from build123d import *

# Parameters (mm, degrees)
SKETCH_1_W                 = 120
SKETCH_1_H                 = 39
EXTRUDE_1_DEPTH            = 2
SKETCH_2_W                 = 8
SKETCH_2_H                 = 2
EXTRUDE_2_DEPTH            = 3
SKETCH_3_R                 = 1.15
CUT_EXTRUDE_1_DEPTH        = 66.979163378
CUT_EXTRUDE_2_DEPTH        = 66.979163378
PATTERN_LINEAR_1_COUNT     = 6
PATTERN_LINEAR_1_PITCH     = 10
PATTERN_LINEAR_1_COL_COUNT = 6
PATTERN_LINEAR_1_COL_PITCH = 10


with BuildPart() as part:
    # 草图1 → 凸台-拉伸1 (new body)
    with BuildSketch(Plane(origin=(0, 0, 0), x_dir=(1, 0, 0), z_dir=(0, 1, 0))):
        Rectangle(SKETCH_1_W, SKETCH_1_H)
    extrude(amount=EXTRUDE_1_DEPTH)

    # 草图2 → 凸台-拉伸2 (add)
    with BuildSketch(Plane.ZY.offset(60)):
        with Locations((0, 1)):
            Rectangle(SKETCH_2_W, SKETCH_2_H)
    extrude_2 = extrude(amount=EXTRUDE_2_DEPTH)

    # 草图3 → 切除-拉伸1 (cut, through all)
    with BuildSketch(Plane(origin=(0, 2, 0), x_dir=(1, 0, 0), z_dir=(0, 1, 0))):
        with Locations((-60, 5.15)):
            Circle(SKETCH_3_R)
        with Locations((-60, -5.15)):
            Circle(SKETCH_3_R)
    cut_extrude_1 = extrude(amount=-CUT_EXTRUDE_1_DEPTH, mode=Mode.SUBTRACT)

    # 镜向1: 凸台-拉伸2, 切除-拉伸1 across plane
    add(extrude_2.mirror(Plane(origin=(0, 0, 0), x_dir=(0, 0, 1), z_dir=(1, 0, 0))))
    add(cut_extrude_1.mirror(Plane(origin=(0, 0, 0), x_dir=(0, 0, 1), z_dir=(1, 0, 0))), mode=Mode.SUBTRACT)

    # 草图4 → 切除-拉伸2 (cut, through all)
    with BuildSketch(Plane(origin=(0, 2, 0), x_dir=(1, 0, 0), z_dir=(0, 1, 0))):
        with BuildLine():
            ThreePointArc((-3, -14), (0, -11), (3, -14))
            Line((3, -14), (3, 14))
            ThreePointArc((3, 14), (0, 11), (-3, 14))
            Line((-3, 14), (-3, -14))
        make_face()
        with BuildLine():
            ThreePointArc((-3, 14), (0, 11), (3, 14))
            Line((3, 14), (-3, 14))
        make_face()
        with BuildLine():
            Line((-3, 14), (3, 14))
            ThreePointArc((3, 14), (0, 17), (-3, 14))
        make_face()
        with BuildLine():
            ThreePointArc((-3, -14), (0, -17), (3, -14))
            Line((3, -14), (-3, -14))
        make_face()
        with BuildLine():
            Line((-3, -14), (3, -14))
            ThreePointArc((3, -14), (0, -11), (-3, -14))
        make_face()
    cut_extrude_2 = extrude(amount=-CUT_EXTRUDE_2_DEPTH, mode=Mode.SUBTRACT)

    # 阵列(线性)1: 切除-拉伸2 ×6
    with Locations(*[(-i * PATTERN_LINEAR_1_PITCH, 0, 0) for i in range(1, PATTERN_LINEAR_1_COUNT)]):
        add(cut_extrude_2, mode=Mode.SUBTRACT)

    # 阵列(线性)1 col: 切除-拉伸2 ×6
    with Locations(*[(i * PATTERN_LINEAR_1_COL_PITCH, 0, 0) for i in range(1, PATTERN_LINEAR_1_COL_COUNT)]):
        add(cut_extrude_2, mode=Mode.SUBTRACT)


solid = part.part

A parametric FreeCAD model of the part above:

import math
import FreeCAD as App
import Part
import Sketcher
from FreeCAD import Vector
Q = App.Units.Quantity


def add_polygon(sketch, points):
    """Adds a closed chain of lines whose ends are joined by coincident constraints."""
    first, n = sketch.GeometryCount, len(points)
    for a, b in zip(points, points[1:] + points[:1]):
        sketch.addGeometry(Part.LineSegment(App.Vector(*a, 0), App.Vector(*b, 0)), False)
    for i in range(n):
        sketch.addConstraint(Sketcher.Constraint("Coincident", first + i, 2, first + (i + 1) % n, 1))

doc = App.newDocument("Part")
body = doc.addObject("PartDesign::Body", "Body")

sketch1 = body.newObject("Sketcher::SketchObject", "Sketch")
sketch1.AttachmentSupport = (doc.getObject("XZ_Plane"), [""])
sketch1.MapMode = "FlatFace"
add_polygon(sketch1, [(-60, -20), (-60, 20), (60, 20), (60, -20)])
sketch1.addConstraint(Sketcher.Constraint("Vertical", 0))
sketch1.addConstraint(Sketcher.Constraint("Horizontal", 1))
sketch1.addConstraint(Sketcher.Constraint("Vertical", 2))
sketch1.addConstraint(Sketcher.Constraint("Horizontal", 3))
sketch1.addConstraint(Sketcher.Constraint("Symmetric", 0, 2, 2, 2, -1, 1))
sketch1.addConstraint(Sketcher.Constraint("DistanceX", 1, 1, 1, 2, Q("120 mm")))
sketch1.addConstraint(Sketcher.Constraint("DistanceY", 0, 1, 0, 2, Q("39 mm")))
pad1 = body.newObject("PartDesign::Pad", "Pad")
pad1.Profile = sketch1
pad1.Length = 2
pad1.Reversed = True

sketch2 = body.newObject("Sketcher::SketchObject", "Sketch001")
sketch2.AttachmentSupport = (doc.getObject("YZ_Plane"), [""])
sketch2.MapMode = "FlatFace"
sketch2.AttachmentOffset = App.Placement(Vector(0, 0, -60), App.Rotation())
add_polygon(sketch2, [(2, -4), (0, -4), (0, 4), (2, 4)])
sketch2.addConstraint(Sketcher.Constraint("Horizontal", 0))
sketch2.addConstraint(Sketcher.Constraint("Vertical", 1))
sketch2.addConstraint(Sketcher.Constraint("Horizontal", 2))
sketch2.addConstraint(Sketcher.Constraint("Vertical", 3))
sketch2.addConstraint(Sketcher.Constraint("Symmetric", 0, 2, 1, 2, -1, 1))
sketch2.addConstraint(Sketcher.Constraint("DistanceX", 0, 2, 0, 1, Q("2 mm")))
sketch2.addConstraint(Sketcher.Constraint("DistanceY", 1, 1, 1, 2, Q("8 mm")))
pad2 = body.newObject("PartDesign::Pad", "Pad001")
pad2.Profile = sketch2
pad2.Length = 3
pad2.Reversed = True

sketch3 = body.newObject("Sketcher::SketchObject", "Sketch002")
sketch3.AttachmentSupport = (doc.getObject("XZ_Plane"), [""])
sketch3.MapMode = "FlatFace"
sketch3.AttachmentOffset = App.Placement(Vector(0, 0, -2), App.Rotation())
sketch3.addGeometry(Part.Circle(Vector(-60, -5.2, 0), Vector(0, 0, 1), 1.1), False)
sketch3.addGeometry(Part.Circle(Vector(-60, 5.2, 0), Vector(0, 0, 1), 1.1), False)
sketch3.addConstraint(Sketcher.Constraint("Equal", 0, 1))
sketch3.addConstraint(Sketcher.Constraint("Symmetric", 0, 3, 1, 3, -1))
sketch3.addConstraint(Sketcher.Constraint("Diameter", 0, Q("2.3 mm")))
sketch3.addConstraint(Sketcher.Constraint("DistanceX", 0, 3, -1, 1, Q("60 mm")))
sketch3.addConstraint(Sketcher.Constraint("DistanceY", 0, 3, 1, 3, Q("10.3 mm")))
pocket1 = body.newObject("PartDesign::Pocket", "Pocket")
pocket1.Profile = sketch3
pocket1.Type = "ThroughAll"
pocket1.Reversed = True
doc.recompute()

mirrored = body.newObject("PartDesign::Mirrored", "Mirrored")
mirrored.Originals = [pad2, pocket1]
mirrored.MirrorPlane = (doc.getObject("YZ_Plane"), [""])
body.Tip = mirrored

sketch4 = body.newObject("Sketcher::SketchObject", "Sketch003")
sketch4.AttachmentSupport = (doc.getObject("XZ_Plane"), [""])
sketch4.MapMode = "FlatFace"
sketch4.AttachmentOffset = App.Placement(Vector(0, 0, -2), App.Rotation())
sketch4.addGeometry(Part.ArcOfCircle(Part.Circle(Vector(0, -14, 0), Vector(0, 0, 1), 3), math.radians(180), math.radians(360)), False)
sketch4.addGeometry(Part.LineSegment(Vector(-3, -14, 0), Vector(-3, 14, 0)), False)
sketch4.addGeometry(Part.ArcOfCircle(Part.Circle(Vector(0, 14, 0), Vector(0, 0, 1), 3), math.radians(0), math.radians(180)), False)
sketch4.addGeometry(Part.LineSegment(Vector(3, 14, 0), Vector(3, -14, 0)), False)
sketch4.addConstraint(Sketcher.Constraint("Tangent", 0, 1, 1, 1))
sketch4.addConstraint(Sketcher.Constraint("Tangent", 1, 2, 2, 2))
sketch4.addConstraint(Sketcher.Constraint("Tangent", 2, 1, 3, 1))
sketch4.addConstraint(Sketcher.Constraint("Tangent", 3, 2, 0, 2))
sketch4.addConstraint(Sketcher.Constraint("Vertical", 1))
sketch4.addConstraint(Sketcher.Constraint("Vertical", 3))
sketch4.addConstraint(Sketcher.Constraint("Symmetric", 0, 3, 2, 3, -1, 1))
sketch4.addConstraint(Sketcher.Constraint("Radius", 0, Q("3 mm")))
sketch4.addConstraint(Sketcher.Constraint("DistanceY", 1, 1, 1, 2, Q("28 mm")))
pocket2 = body.newObject("PartDesign::Pocket", "Pocket001")
pocket2.Profile = sketch4
pocket2.Type = "ThroughAll"
pocket2.Reversed = True
doc.recompute()

linearpattern = body.newObject("PartDesign::LinearPattern", "LinearPattern")
linearpattern.Originals = [pocket2]
linearpattern.Direction = (doc.getObject("X_Axis"), [""])
linearpattern.Mode = "offset"
linearpattern.Offset = 10
linearpattern.Occurrences = 6
linearpattern.Reversed = True
body.Tip = linearpattern
doc.recompute()

linearpattern2 = body.newObject("PartDesign::LinearPattern", "LinearPattern001")
linearpattern2.Originals = [pocket2]
linearpattern2.Direction = (doc.getObject("X_Axis"), [""])
linearpattern2.Mode = "offset"
linearpattern2.Offset = 10
linearpattern2.Occurrences = 6
body.Tip = linearpattern2

doc.recompute()
